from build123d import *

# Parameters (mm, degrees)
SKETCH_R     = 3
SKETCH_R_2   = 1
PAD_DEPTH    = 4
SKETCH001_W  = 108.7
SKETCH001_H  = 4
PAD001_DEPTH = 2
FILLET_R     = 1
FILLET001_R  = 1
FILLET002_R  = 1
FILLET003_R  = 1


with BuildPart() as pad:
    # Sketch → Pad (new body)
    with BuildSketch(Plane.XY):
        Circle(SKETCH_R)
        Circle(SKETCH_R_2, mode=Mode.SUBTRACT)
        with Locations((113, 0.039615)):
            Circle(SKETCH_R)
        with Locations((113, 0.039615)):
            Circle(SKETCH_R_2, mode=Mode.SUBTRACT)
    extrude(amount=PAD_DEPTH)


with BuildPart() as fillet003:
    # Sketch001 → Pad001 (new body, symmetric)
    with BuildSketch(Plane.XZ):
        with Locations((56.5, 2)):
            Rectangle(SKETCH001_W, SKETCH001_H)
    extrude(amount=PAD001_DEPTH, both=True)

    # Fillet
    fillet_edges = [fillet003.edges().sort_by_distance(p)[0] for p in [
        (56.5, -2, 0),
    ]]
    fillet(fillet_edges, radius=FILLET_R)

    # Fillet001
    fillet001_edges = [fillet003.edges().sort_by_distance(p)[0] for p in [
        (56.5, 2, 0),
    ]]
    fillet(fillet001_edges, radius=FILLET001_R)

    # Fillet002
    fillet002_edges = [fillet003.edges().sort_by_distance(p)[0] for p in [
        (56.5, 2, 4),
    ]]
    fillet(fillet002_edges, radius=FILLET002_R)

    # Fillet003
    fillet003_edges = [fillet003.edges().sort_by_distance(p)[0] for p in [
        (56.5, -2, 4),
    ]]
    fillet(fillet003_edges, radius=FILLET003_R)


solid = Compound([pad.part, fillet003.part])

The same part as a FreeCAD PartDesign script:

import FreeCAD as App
import Part
import Sketcher
from FreeCAD import Vector


def edges_at(feature, points):
    """Names of the edges that pass closest to the given points."""
    edges = feature.Shape.Edges
    near = lambda p: min(range(len(edges)), key=lambda i: edges[i].distToShape(Part.Vertex(*p))[0])
    return sorted({f"Edge{near(p) + 1}" for p in points})


def add_polygon(sketch, points):
    """Adds a closed chain of lines whose ends are joined by coincident constraints."""
    first, n = sketch.GeometryCount, len(points)
    for a, b in zip(points, points[1:] + points[:1]):
        sketch.addGeometry(Part.LineSegment(App.Vector(*a, 0), App.Vector(*b, 0)), False)
    for i in range(n):
        sketch.addConstraint(Sketcher.Constraint("Coincident", first + i, 2, first + (i + 1) % n, 1))

doc = App.newDocument("Part")
params = doc.addObject("Spreadsheet::Sheet", "Params")
for row, (alias, value) in enumerate([
    ("sketch1_diameter", "6 mm"),
    ("sketch1_diameter2", "2 mm"),
    ("pad1_length", "4 mm"),
    ("sketch2_height", "4 mm"),
    ("sketch2_width", "108.7 mm"),
    ("pad2_length", "4 mm"),
    ("fillet_radius", "1 mm"),
    ("fillet2_radius", "1 mm"),
    ("fillet3_radius", "1 mm"),
    ("fillet4_radius", "1 mm"),
], start=1):
    params.set(f"A{row}", alias)
    params.set(f"B{row}", "=" + value)
    params.setAlias(f"B{row}", alias)

body = doc.addObject("PartDesign::Body", "Body")
body.AllowCompound = True

sketch1 = body.newObject("Sketcher::SketchObject", "Sketch")
sketch1.AttachmentSupport = (doc.getObject("XY_Plane"), [""])
sketch1.MapMode = "FlatFace"
sketch1.addGeometry([
    Part.Circle(Vector(0, 0, 0), Vector(0, 0, 1), 3),
    Part.Circle(Vector(0, 0, 0), Vector(0, 0, 1), 1),
    Part.Circle(Vector(113, 0.039615, 0), Vector(0, 0, 1), 3),
    Part.Circle(Vector(113, 0.039615, 0), Vector(0, 0, 1), 1),
], False)
sketch1.addConstraint([
    Sketcher.Constraint("Coincident", 0, 3, -1, 1),
    Sketcher.Constraint("Coincident", 1, 3, -1, 1),
    Sketcher.Constraint("Coincident", 3, 3, 2, 3),
    Sketcher.Constraint("Equal", 0, 2),
    Sketcher.Constraint("Equal", 1, 3),
    Sketcher.Constraint("Diameter", 0, 6.0),
    Sketcher.Constraint("Diameter", 1, 2.0),
    Sketcher.Constraint("DistanceX", -1, 1, 2, 3, 113.0),
    Sketcher.Constraint("DistanceY", -1, 1, 2, 3, 0.039615),
])
sketch1.setExpression("Constraints[5]", "Params.sketch1_diameter")
sketch1.setExpression("Constraints[6]", "Params.sketch1_diameter2")
pad1 = body.newObject("PartDesign::Pad", "Pad")
pad1.Profile = sketch1
pad1.setExpression("Length", "Params.pad1_length")
body2 = doc.addObject("PartDesign::Body", "Body001")

sketch2 = body2.newObject("Sketcher::SketchObject", "Sketch001")
sketch2.AttachmentSupport = (doc.getObject("XZ_Plane001"), [""])
sketch2.MapMode = "FlatFace"
add_polygon(sketch2, [(2.15, 4), (2.15, 0), (110.85, 0), (110.85, 4)])
sketch2.addConstraint([
    Sketcher.Constraint("Vertical", 0),
    Sketcher.Constraint("Horizontal", 1),
    Sketcher.Constraint("Vertical", 2),
    Sketcher.Constraint("Horizontal", 3),
    Sketcher.Constraint("PointOnObject", 0, 2, -1),
    Sketcher.Constraint("DistanceY", 0, 2, 0, 1, 4.0),
    Sketcher.Constraint("DistanceX", 1, 1, 1, 2, 108.7),
    Sketcher.Constraint("DistanceX", -1, 1, 0, 2, 2.15),
])
sketch2.setExpression("Constraints[9]", "Params.sketch2_height")
sketch2.setExpression("Constraints[10]", "Params.sketch2_width")
pad2 = body2.newObject("PartDesign::Pad", "Pad001")
pad2.Profile = sketch2
pad2.setExpression("Length", "Params.pad2_length")
pad2.Midplane = True
doc.recompute()

fillet = body2.newObject("PartDesign::Fillet", "Fillet")
fillet.Base = (pad2, edges_at(pad2, [(56.5, -2, 0)]))
fillet.setExpression("Radius", "Params.fillet_radius")
doc.recompute()

fillet2 = body2.newObject("PartDesign::Fillet", "Fillet001")
fillet2.Base = (fillet, edges_at(fillet, [(56.5, 2, 0)]))
fillet2.setExpression("Radius", "Params.fillet2_radius")
doc.recompute()

fillet3 = body2.newObject("PartDesign::Fillet", "Fillet002")
fillet3.Base = (fillet2, edges_at(fillet2, [(56.5, 2, 4)]))
fillet3.setExpression("Radius", "Params.fillet3_radius")
doc.recompute()

fillet4 = body2.newObject("PartDesign::Fillet", "Fillet003")
fillet4.Base = (fillet3, edges_at(fillet3, [(56.5, -2, 4)]))
fillet4.setExpression("Radius", "Params.fillet4_radius")

doc.recompute()
